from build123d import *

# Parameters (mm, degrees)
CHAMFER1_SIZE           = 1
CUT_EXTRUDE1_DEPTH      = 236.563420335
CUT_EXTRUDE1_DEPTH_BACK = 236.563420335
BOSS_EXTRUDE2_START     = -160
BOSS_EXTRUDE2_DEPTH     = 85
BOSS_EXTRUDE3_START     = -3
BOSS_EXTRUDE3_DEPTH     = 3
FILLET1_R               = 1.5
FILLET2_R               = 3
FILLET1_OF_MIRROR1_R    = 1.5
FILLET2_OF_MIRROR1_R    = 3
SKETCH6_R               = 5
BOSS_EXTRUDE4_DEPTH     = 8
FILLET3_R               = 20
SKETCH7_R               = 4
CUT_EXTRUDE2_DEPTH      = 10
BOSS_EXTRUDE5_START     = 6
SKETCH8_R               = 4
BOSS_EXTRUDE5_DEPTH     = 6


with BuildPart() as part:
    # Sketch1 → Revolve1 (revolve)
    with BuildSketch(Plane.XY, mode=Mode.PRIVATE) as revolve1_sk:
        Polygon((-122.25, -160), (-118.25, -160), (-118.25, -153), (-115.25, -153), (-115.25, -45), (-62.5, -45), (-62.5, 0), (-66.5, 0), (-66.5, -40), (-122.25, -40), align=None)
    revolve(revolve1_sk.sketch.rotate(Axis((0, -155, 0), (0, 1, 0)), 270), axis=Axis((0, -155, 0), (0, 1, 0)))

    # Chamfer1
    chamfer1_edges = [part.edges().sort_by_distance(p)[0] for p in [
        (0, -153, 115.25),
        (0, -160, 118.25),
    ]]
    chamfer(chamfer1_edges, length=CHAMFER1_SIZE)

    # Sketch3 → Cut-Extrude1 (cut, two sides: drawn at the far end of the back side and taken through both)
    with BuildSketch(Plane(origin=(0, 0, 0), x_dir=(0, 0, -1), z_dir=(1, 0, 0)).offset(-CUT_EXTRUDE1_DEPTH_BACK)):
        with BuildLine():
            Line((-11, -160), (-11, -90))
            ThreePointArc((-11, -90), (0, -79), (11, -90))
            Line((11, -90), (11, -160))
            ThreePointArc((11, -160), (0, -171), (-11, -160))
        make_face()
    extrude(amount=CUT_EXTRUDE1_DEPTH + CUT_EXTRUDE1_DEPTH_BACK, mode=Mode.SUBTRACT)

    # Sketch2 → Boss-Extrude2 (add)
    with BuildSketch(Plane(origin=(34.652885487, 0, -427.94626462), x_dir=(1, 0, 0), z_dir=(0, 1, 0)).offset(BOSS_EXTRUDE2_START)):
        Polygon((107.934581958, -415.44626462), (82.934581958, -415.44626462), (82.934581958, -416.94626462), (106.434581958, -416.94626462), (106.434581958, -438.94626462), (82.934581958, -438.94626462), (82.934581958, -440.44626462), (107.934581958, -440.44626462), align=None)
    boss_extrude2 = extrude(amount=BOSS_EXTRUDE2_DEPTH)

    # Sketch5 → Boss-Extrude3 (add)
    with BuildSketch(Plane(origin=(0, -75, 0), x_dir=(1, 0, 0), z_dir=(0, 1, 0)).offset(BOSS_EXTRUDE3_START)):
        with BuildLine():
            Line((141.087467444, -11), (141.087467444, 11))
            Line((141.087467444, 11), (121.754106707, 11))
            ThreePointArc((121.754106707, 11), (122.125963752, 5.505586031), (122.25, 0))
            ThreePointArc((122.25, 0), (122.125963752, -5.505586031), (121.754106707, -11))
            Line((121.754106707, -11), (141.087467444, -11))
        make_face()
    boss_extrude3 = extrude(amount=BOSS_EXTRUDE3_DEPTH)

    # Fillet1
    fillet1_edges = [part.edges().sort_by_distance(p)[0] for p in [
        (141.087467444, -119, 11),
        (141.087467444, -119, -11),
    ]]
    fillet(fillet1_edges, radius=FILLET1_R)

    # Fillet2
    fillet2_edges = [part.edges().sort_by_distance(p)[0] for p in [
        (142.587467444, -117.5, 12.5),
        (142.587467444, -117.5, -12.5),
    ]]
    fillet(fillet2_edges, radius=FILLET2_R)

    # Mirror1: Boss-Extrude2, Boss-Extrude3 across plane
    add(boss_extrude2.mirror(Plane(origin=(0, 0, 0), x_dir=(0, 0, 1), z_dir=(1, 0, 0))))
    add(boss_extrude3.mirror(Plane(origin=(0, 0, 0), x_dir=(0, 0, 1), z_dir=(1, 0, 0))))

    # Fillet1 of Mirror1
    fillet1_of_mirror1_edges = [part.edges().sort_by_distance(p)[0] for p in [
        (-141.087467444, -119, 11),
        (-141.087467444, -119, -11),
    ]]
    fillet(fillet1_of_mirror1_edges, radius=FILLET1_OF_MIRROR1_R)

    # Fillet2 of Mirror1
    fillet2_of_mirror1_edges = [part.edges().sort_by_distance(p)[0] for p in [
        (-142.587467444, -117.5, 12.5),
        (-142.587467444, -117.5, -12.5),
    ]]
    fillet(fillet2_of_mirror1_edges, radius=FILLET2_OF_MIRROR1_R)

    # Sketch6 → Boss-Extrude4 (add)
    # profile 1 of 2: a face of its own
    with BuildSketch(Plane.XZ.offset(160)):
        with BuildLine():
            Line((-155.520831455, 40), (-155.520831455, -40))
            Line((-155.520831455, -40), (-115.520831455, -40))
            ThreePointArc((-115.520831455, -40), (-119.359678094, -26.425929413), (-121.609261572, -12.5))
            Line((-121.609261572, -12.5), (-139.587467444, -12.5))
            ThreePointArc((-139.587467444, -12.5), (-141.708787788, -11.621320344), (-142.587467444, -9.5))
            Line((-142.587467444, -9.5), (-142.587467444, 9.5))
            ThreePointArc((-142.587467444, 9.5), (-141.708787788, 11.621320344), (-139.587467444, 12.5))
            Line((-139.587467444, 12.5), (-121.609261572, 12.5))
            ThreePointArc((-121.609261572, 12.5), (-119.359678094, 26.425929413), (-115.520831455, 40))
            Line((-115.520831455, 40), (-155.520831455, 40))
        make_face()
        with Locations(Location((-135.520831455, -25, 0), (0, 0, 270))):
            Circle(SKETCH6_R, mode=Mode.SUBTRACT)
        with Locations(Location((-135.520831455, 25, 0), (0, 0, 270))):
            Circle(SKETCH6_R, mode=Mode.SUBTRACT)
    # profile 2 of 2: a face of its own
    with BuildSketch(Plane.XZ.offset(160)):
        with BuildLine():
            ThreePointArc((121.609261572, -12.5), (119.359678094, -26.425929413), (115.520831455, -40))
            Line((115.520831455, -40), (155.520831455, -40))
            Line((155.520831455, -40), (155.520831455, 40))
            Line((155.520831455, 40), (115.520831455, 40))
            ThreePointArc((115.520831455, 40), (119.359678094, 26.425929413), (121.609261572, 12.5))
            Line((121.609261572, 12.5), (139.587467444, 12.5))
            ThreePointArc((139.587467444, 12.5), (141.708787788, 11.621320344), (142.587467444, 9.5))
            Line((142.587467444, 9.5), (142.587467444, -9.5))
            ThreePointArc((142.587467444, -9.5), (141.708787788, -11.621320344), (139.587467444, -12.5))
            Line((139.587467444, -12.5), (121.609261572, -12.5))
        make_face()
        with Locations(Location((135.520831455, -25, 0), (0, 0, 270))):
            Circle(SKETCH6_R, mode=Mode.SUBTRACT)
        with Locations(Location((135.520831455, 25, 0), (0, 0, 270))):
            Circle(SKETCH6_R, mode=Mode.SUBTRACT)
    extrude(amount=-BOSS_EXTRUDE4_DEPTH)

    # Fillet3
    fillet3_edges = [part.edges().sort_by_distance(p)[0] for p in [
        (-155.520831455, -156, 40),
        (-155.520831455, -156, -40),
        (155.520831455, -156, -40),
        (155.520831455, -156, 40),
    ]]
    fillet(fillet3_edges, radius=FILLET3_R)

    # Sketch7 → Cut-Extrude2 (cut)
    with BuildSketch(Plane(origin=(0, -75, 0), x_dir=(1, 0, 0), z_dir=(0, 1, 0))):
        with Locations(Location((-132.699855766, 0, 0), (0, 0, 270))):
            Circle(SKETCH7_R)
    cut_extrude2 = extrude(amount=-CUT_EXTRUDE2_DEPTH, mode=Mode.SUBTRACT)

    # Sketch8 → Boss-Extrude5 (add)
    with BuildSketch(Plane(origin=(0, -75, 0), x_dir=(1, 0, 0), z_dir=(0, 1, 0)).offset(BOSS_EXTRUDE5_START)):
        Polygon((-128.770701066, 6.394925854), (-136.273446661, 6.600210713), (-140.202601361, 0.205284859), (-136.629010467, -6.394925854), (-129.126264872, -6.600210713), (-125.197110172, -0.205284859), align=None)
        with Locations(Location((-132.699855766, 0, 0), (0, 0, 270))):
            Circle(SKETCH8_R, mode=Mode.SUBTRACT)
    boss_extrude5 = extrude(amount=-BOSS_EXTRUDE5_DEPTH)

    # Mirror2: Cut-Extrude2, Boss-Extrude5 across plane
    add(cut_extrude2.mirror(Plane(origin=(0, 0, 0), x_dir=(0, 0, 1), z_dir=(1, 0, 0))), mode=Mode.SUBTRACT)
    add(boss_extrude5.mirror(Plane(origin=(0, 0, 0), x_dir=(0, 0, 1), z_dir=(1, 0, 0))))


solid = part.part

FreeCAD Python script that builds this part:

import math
import FreeCAD as App
import Part
import Sketcher


def edges_at(feature, points):
    """Names of the edges that pass closest to the given points."""
    edges = feature.Shape.Edges
    near = lambda p: min(range(len(edges)), key=lambda i: edges[i].distToShape(Part.Vertex(*p))[0])
    return sorted({f"Edge{near(p) + 1}" for p in points})


def add_polygon(sketch, points):
    """Adds a closed chain of lines whose ends are joined by coincident constraints."""
    first, n = sketch.GeometryCount, len(points)
    for a, b in zip(points, points[1:] + points[:1]):
        sketch.addGeometry(Part.LineSegment(App.Vector(*a, 0), App.Vector(*b, 0)), False)
    for i in range(n):
        sketch.addConstraint(Sketcher.Constraint("Coincident", first + i, 2, first + (i + 1) % n, 1))

doc = App.newDocument("Part")
body = doc.addObject("PartDesign::Body", "Body")

# Sketch on XY plane
sketch1 = doc.addObject("Sketcher::SketchObject", "Sketch")
body.addObject(sketch1)
sketch1.AttachmentSupport = (doc.XY_Plane, [""])
sketch1.MapMode = "FlatFace"
add_polygon(sketch1, [(-122.2, -160), (-118.2, -160), (-118.2, -153), (-115.2, -153), (-115.2, -45), (-62.5, -45), (-62.5, 0), (-66.5, 0), (-66.5, -40), (-122.2, -40)])  # lines 0-9
sketch1.addConstraint([
    Sketcher.Constraint("Horizontal", 0),
    Sketcher.Constraint("Vertical", 1),
    Sketcher.Constraint("Horizontal", 2),
    Sketcher.Constraint("Vertical", 3),
    Sketcher.Constraint("Horizontal", 4),
    Sketcher.Constraint("Vertical", 5),
    Sketcher.Constraint("Horizontal", 6),
    Sketcher.Constraint("Vertical", 7),
    Sketcher.Constraint("Horizontal", 8),
    Sketcher.Constraint("Vertical", 9),
    Sketcher.Constraint("PointOnObject", 5, 2, -1),
    Sketcher.Constraint("Equal", 0, 6),
    Sketcher.Constraint("DistanceX", 0, 1, 0, 2, 4.0),
    Sketcher.Constraint("DistanceX", 2, 1, 2, 2, 3.0),
    Sketcher.Constraint("DistanceY", 1, 1, 1, 2, 7.0),
    Sketcher.Constraint("DistanceY", 3, 1, 3, 2, 108.0),
    Sketcher.Constraint("DistanceY", 5, 1, 5, 2, 45.0),
    Sketcher.Constraint("DistanceY", 7, 2, 7, 1, 40.0),
    Sketcher.Constraint("DistanceX", 4, 1, 4, 2, 52.75),
    Sketcher.Constraint("DistanceX", 4, 2, -1, 1, 62.5),
])
revolution = doc.addObject("PartDesign::Revolution", "Revolution")
body.addObject(revolution)
revolution.Profile = sketch1
revolution.ReferenceAxis = (sketch1, ["V_Axis"])
revolution.Angle = 360
doc.recompute()

chamfer = doc.addObject("PartDesign::Chamfer", "Chamfer")
body.addObject(chamfer)
chamfer.Base = (revolution, edges_at(revolution, [(0, -153, 115.25), (0, -160, 118.25)]))
chamfer.Size = 1

# Sketch on YZ plane
sketch2 = doc.addObject("Sketcher::SketchObject", "Sketch001")
body.addObject(sketch2)
sketch2.AttachmentSupport = (doc.YZ_Plane, [""])
sketch2.MapMode = "FlatFace"
sketch2.addGeometry([
    Part.LineSegment(App.Vector(-90, 11, 0), App.Vector(-160, 11, 0)),
    Part.ArcOfCircle(Part.Circle(App.Vector(-160, 0, 0), App.Vector(0, 0, 1), 11), math.radians(90), math.radians(270)),
    Part.LineSegment(App.Vector(-160, -11, 0), App.Vector(-90, -11, 0)),
    Part.ArcOfCircle(Part.Circle(App.Vector(-90, 0, 0), App.Vector(0, 0, 1), 11), math.radians(-90), math.radians(90)),
], False)
sketch2.addConstraint([
    Sketcher.Constraint("Tangent", 0, 2, 1, 1),
    Sketcher.Constraint("Tangent", 1, 2, 2, 1),
    Sketcher.Constraint("Tangent", 2, 2, 3, 1),
    Sketcher.Constraint("Tangent", 3, 2, 0, 1),
    Sketcher.Constraint("Horizontal", 0),
    Sketcher.Constraint("Horizontal", 2),
    Sketcher.Constraint("PointOnObject", 1, 3, -1),
    Sketcher.Constraint("Radius", 1, 11.0),
    Sketcher.Constraint("DistanceX", 0, 2, 0, 1, 70.0),
    Sketcher.Constraint("DistanceX", 1, 3, -1, 1, 160.0),
])
pocket1 = doc.addObject("PartDesign::Pocket", "Pocket")
body.addObject(pocket1)
pocket1.Profile = sketch2
pocket1.Type = "ThroughAll"
pocket1.Midplane = True

# Sketch on XZ plane
sketch3 = doc.addObject("Sketcher::SketchObject", "Sketch002")
body.addObject(sketch3)
sketch3.AttachmentSupport = (doc.XZ_Plane, [""])
sketch3.MapMode = "FlatFace"
sketch3.AttachmentOffset = App.Placement(App.Vector(0, 0, 160), App.Rotation())
add_polygon(sketch3, [(142.6, -12.5), (117.6, -12.5), (117.6, -11), (141.1, -11), (141.1, 11), (117.6, 11), (117.6, 12.5), (142.6, 12.5)])  # lines 0-7
sketch3.addConstraint([
    Sketcher.Constraint("Horizontal", 0),
    Sketcher.Constraint("Vertical", 1),
    Sketcher.Constraint("Horizontal", 2),
    Sketcher.Constraint("Vertical", 3),
    Sketcher.Constraint("Horizontal", 4),
    Sketcher.Constraint("Vertical", 5),
    Sketcher.Constraint("Horizontal", 6),
    Sketcher.Constraint("Vertical", 7),
    Sketcher.Constraint("Symmetric", 1, 2, 4, 2, -1),
    Sketcher.Constraint("Equal", 1, 5),
    Sketcher.Constraint("Equal", 6, 7),
    Sketcher.Constraint("DistanceX", 0, 2, 0, 1, 25.0),
    Sketcher.Constraint("DistanceY", 3, 1, 3, 2, 22.0),
    Sketcher.Constraint("DistanceX", 2, 1, 2, 2, 23.5),
    Sketcher.Constraint("DistanceX", -1, 1, 0, 2, 117.587467),
])
pad1 = doc.addObject("PartDesign::Pad", "Pad")
body.addObject(pad1)
pad1.Profile = sketch3
pad1.Length = 85
pad1.Reversed = True

# Sketch on XZ plane
sketch4 = doc.addObject("Sketcher::SketchObject", "Sketch003")
body.addObject(sketch4)
sketch4.AttachmentSupport = (doc.XZ_Plane, [""])
sketch4.MapMode = "FlatFace"
sketch4.AttachmentOffset = App.Placement(App.Vector(0, 0, 78), App.Rotation())
sketch4.addGeometry([
    Part.LineSegment(App.Vector(141, 11, 0), App.Vector(141, -11, 0)),  # 0
    Part.LineSegment(App.Vector(141, -11, 0), App.Vector(122, -11, 0)),  # 1
    Part.ArcOfCircle(Part.Circle(App.Vector(0, 0, 0), App.Vector(0, 0, 1), 122), math.radians(-5.16), math.radians(0)),  # 2
    Part.ArcOfCircle(Part.Circle(App.Vector(0, 0, 0), App.Vector(0, 0, 1), 122), math.radians(0), math.radians(5.16)),  # 3
    Part.LineSegment(App.Vector(122, 11, 0), App.Vector(141, 11, 0)),  # 4
], False)
sketch4.addConstraint([
    Sketcher.Constraint("Coincident", 0, 2, 1, 1),
    Sketcher.Constraint("Coincident", 1, 2, 2, 1),
    Sketcher.Constraint("Tangent", 2, 2, 3, 1),
    Sketcher.Constraint("Coincident", 3, 2, 4, 1),
    Sketcher.Constraint("Coincident", 4, 2, 0, 1),
    Sketcher.Constraint("Vertical", 0),
    Sketcher.Constraint("Horizontal", 1),
    Sketcher.Constraint("Horizontal", 4),
    Sketcher.Constraint("Coincident", 2, 3, -1, 1),
    Sketcher.Constraint("Equal", 2, 3),
    Sketcher.Constraint("PointOnObject", 2, 2, -1),
    Sketcher.Constraint("Vertical", 1, 2, 3, 2),
    Sketcher.Constraint("DistanceY", 0, 2, 0, 1, 22.0),
    Sketcher.Constraint("Radius", 2, 122.25),
    Sketcher.Constraint("DistanceX", 1, 2, 1, 1, 19.333361),
])
pad2 = doc.addObject("PartDesign::Pad", "Pad001")
body.addObject(pad2)
pad2.Profile = sketch4
pad2.Length = 3
pad2.Reversed = True
doc.recompute()

fillet = doc.addObject("PartDesign::Fillet", "Fillet")
body.addObject(fillet)
fillet.Base = (pad2, edges_at(pad2, [(141.087, -119, 11), (141.087, -119, -11)]))
fillet.Radius = 1.5
doc.recompute()

fillet2 = doc.addObject("PartDesign::Fillet", "Fillet001")
body.addObject(fillet2)
fillet2.Base = (fillet, edges_at(fillet, [(142.587, -117.5, 12.5), (142.587, -117.5, -12.5)]))
fillet2.Radius = 3
doc.recompute()

mirrored = doc.addObject("PartDesign::Mirrored", "Mirrored")
body.addObject(mirrored)
mirrored.Originals = [pad1, pad2]
mirrored.MirrorPlane = (doc.YZ_Plane, [""])
body.Tip = mirrored
doc.recompute()

fillet3 = doc.addObject("PartDesign::Fillet", "Fillet002")
body.addObject(fillet3)
fillet3.Base = (mirrored, edges_at(mirrored, [(-141.087, -119, 11), (-141.087, -119, -11)]))
fillet3.Radius = 1.5
doc.recompute()

fillet4 = doc.addObject("PartDesign::Fillet", "Fillet003")
body.addObject(fillet4)
fillet4.Base = (fillet3, edges_at(fillet3, [(-142.587, -117.5, 12.5), (-142.587, -117.5, -12.5)]))
fillet4.Radius = 3

# Sketch on XZ plane
sketch5 = doc.addObject("Sketcher::SketchObject", "Sketch004")
body.addObject(sketch5)
sketch5.AttachmentSupport = (doc.XZ_Plane, [""])
sketch5.MapMode = "FlatFace"
sketch5.AttachmentOffset = App.Placement(App.Vector(0, 0, 160), App.Rotation())
sketch5.addGeometry([
    Part.LineSegment(App.Vector(-155.5, 40, 0), App.Vector(-155.5, -40, 0)),  # 0
    Part.LineSegment(App.Vector(-155.5, -40, 0), App.Vector(-115.5, -40, 0)),  # 1
    Part.ArcOfCircle(Part.Circle(App.Vector(0, 0, 0), App.Vector(0, 0, 1), 122.3), math.radians(-174.13), math.radians(-160.9)),  # 2
    Part.LineSegment(App.Vector(-121.6, -12.5, 0), App.Vector(-139.6, -12.5, 0)),  # 3
    Part.ArcOfCircle(Part.Circle(App.Vector(-139.6, -9.5, 0), App.Vector(0, 0, 1), 3), math.radians(180), math.radians(270)),  # 4
    Part.LineSegment(App.Vector(-142.6, -9.5, 0), App.Vector(-142.6, 9.5, 0)),  # 5
    Part.ArcOfCircle(Part.Circle(App.Vector(-139.6, 9.5, 0), App.Vector(0, 0, 1), 3), math.radians(90), math.radians(180)),  # 6
    Part.LineSegment(App.Vector(-139.6, 12.5, 0), App.Vector(-121.6, 12.5, 0)),  # 7
    Part.ArcOfCircle(Part.Circle(App.Vector(0, 0, 0), App.Vector(0, 0, 1), 122.3), math.radians(160.9), math.radians(174.13)),  # 8
    Part.LineSegment(App.Vector(-115.5, 40, 0), App.Vector(-155.5, 40, 0)),  # 9
    Part.Circle(App.Vector(-135.5, -25, 0), App.Vector(0, 0, 1), 5),  # 10
    Part.Circle(App.Vector(-135.5, 25, 0), App.Vector(0, 0, 1), 5),  # 11
    Part.ArcOfCircle(Part.Circle(App.Vector(0, 0, 0), App.Vector(0, 0, 1), 122.3), math.radians(-19.1), math.radians(-5.87)),  # 12
    Part.LineSegment(App.Vector(115.5, -40, 0), App.Vector(155.5, -40, 0)),  # 13
    Part.LineSegment(App.Vector(155.5, -40, 0), App.Vector(155.5, 40, 0)),  # 14
    Part.LineSegment(App.Vector(155.5, 40, 0), App.Vector(115.5, 40, 0)),  # 15
    Part.ArcOfCircle(Part.Circle(App.Vector(0, 0, 0), App.Vector(0, 0, 1), 122.3), math.radians(5.87), math.radians(19.1)),  # 16
    Part.LineSegment(App.Vector(121.6, 12.5, 0), App.Vector(139.6, 12.5, 0)),  # 17
    Part.ArcOfCircle(Part.Circle(App.Vector(139.6, 9.5, 0), App.Vector(0, 0, 1), 3), math.radians(0), math.radians(90)),  # 18
    Part.LineSegment(App.Vector(142.6, 9.5, 0), App.Vector(142.6, -9.5, 0)),  # 19
    Part.ArcOfCircle(Part.Circle(App.Vector(139.6, -9.5, 0), App.Vector(0, 0, 1), 3), math.radians(-90), math.radians(0)),  # 20
    Part.LineSegment(App.Vector(139.6, -12.5, 0), App.Vector(121.6, -12.5, 0)),  # 21
    Part.Circle(App.Vector(135.5, -25, 0), App.Vector(0, 0, 1), 5),  # 22
    Part.Circle(App.Vector(135.5, 25, 0), App.Vector(0, 0, 1), 5),  # 23
], False)
sketch5.addConstraint([
    Sketcher.Constraint("Coincident", 0, 2, 1, 1),
    Sketcher.Constraint("Coincident", 1, 2, 2, 2),
    Sketcher.Constraint("Coincident", 2, 1, 3, 1),
    Sketcher.Constraint("Tangent", 3, 2, 4, 2),
    Sketcher.Constraint("Tangent", 4, 1, 5, 1),
    Sketcher.Constraint("Tangent", 5, 2, 6, 2),
    Sketcher.Constraint("Tangent", 6, 1, 7, 1),
    Sketcher.Constraint("Coincident", 7, 2, 8, 2),
    Sketcher.Constraint("Coincident", 8, 1, 9, 1),
    Sketcher.Constraint("Coincident", 9, 2, 0, 1),
    Sketcher.Constraint("Coincident", 12, 1, 13, 1),
    Sketcher.Constraint("Coincident", 13, 2, 14, 1),
    Sketcher.Constraint("Coincident", 14, 2, 15, 1),
    Sketcher.Constraint("Coincident", 15, 2, 16, 2),
    Sketcher.Constraint("Coincident", 16, 1, 17, 1),
    Sketcher.Constraint("Tangent", 17, 2, 18, 2),
    Sketcher.Constraint("Tangent", 18, 1, 19, 1),
    Sketcher.Constraint("Tangent", 19, 2, 20, 2),
    Sketcher.Constraint("Tangent", 20, 1, 21, 1),
    Sketcher.Constraint("Coincident", 21, 2, 12, 2),
    Sketcher.Constraint("Vertical", 0),
    Sketcher.Constraint("Horizontal", 1),
    Sketcher.Constraint("Horizontal", 3),
    Sketcher.Constraint("Vertical", 5),
    Sketcher.Constraint("Horizontal", 7),
    Sketcher.Constraint("Horizontal", 9),
    Sketcher.Constraint("Horizontal", 13),
    Sketcher.Constraint("Vertical", 14),
    Sketcher.Constraint("Horizontal", 15),
    Sketcher.Constraint("Horizontal", 17),
    Sketcher.Constraint("Vertical", 19),
    Sketcher.Constraint("Horizontal", 21),
    Sketcher.Constraint("Coincident", 2, 3, -1, 1),
    Sketcher.Constraint("Coincident", 8, 3, -1, 1),
    Sketcher.Constraint("Coincident", 12, 3, -1, 1),
    Sketcher.Constraint("Coincident", 16, 3, -1, 1),
    Sketcher.Constraint("Equal", 4, 6),
    Sketcher.Constraint("Equal", 2, 8),
    Sketcher.Constraint("Equal", 10, 11),
    Sketcher.Constraint("Equal", 8, 12),
    Sketcher.Constraint("Equal", 12, 16),
    Sketcher.Constraint("Equal", 6, 18),
    Sketcher.Constraint("Equal", 18, 20),
    Sketcher.Constraint("Equal", 11, 22),
    Sketcher.Constraint("Equal", 22, 23),
    Sketcher.Constraint("Symmetric", 4, 3, 18, 3, -1, 1),
    Sketcher.Constraint("Symmetric", 11, 3, 22, 3, -1, 1),
    Sketcher.Constraint("Symmetric", 10, 3, 23, 3, -1, 1),
    Sketcher.Constraint("Symmetric", 9, 2, 13, 2, -1, 1),
    Sketcher.Constraint("Symmetric", 10, 3, 22, 3, -2),
    Sketcher.Constraint("Horizontal", 6, 3, 18, 3),
    Sketcher.Constraint("Horizontal", 4, 3, 20, 3),
    Sketcher.Constraint("Horizontal", 1, 2, 12, 1),
    Sketcher.Constraint("Horizontal", 9, 2, 14, 2),
    Sketcher.Constraint("Diameter", 10, 10.0),
    Sketcher.Constraint("Radius", 4, 3.0),
    Sketcher.Constraint("DistanceX", 1, 1, 1, 2, 40.0),
    Sketcher.Constraint("DistanceY", 0, 2, 0, 1, 80.0),
    Sketcher.Constraint("DistanceY", 5, 1, 5, 2, 19.0),
    Sketcher.Constraint("Radius", 2, 122.25),
    Sketcher.Constraint("DistanceY", 10, 3, -1, 1, 25.0),
    Sketcher.Constraint("DistanceX", 0, 2, 10, 3, 20.0),
    Sketcher.Constraint("DistanceX", 11, 3, 18, 3, 275.108299),
])
pad3 = doc.addObject("PartDesign::Pad", "Pad002")
body.addObject(pad3)
pad3.Profile = sketch5
pad3.Length = 8
pad3.Reversed = True
doc.recompute()

fillet5 = doc.addObject("PartDesign::Fillet", "Fillet004")
body.addObject(fillet5)
fillet5.Base = (pad3, edges_at(pad3, [
    (-155.521, -156, 40),
    (-155.521, -156, -40),
    (155.521, -156, -40),
    (155.521, -156, 40),
]))
fillet5.Radius = 20

# Sketch on XZ plane
sketch6 = doc.addObject("Sketcher::SketchObject", "Sketch005")
body.addObject(sketch6)
sketch6.AttachmentSupport = (doc.XZ_Plane, [""])
sketch6.MapMode = "FlatFace"
sketch6.AttachmentOffset = App.Placement(App.Vector(0, 0, 75), App.Rotation())
sketch6.addGeometry(Part.Circle(App.Vector(-132.699856, 0, 0), App.Vector(0, 0, 1), 4), False)
sketch6.addConstraint([
    Sketcher.Constraint("PointOnObject", 0, 3, -1),
    Sketcher.Constraint("Diameter", 0, 8.0),
    Sketcher.Constraint("DistanceX", 0, 3, -1, 1, 132.699856),
])
pocket2 = doc.addObject("PartDesign::Pocket", "Pocket001")
body.addObject(pocket2)
pocket2.Profile = sketch6
pocket2.Length = 10
pocket2.Reversed = True

# Sketch on XZ plane
sketch7 = doc.addObject("Sketcher::SketchObject", "Sketch006")
body.addObject(sketch7)
sketch7.AttachmentSupport = (doc.XZ_Plane, [""])
sketch7.MapMode = "FlatFace"
sketch7.AttachmentOffset = App.Placement(App.Vector(0, 0, 69), App.Rotation())
add_polygon(sketch7, [(-128.8, -6.4), (-136.3, -6.6), (-140.2, -0.2), (-136.6, 6.4), (-129.1, 6.6), (-125.2, 0.2)])  # lines 0-5
sketch7.addGeometry(Part.Circle(App.Vector(-132.7, 0, 0), App.Vector(0, 0, 1), 4), False)  # 6
sketch7.addConstraint([
    Sketcher.Constraint("PointOnObject", 6, 3, -1),
    Sketcher.Constraint("Parallel", 0, 3),
    Sketcher.Constraint("Parallel", 1, 4),
    Sketcher.Constraint("Parallel", 2, 5),
    Sketcher.Constraint("Equal", 0, 1),
    Sketcher.Constraint("Equal", 1, 2),
    Sketcher.Constraint("Equal", 2, 3),
    Sketcher.Constraint("Diameter", 6, 8.0),
    Sketcher.Constraint("DistanceX", 1, 2, -1, 1, 140.202601),
    Sketcher.Constraint("DistanceX", 5, 2, -1, 1, 128.770701),
    Sketcher.Constraint("DistanceY", 0, 2, -1, 1, 6.600211),
    Sketcher.Constraint("DistanceX", 2, 2, -1, 1, 136.62901),
    Sketcher.Constraint("DistanceY", -1, 1, 3, 2, 6.600211),
    Sketcher.Constraint("DistanceX", 0, 2, 6, 3, 3.573591),
    Sketcher.Constraint("DistanceY", 1, 2, 2, 2, 6.600211),
])
pad4 = doc.addObject("PartDesign::Pad", "Pad003")
body.addObject(pad4)
pad4.Profile = sketch7
pad4.Length = 6
doc.recompute()

mirrored2 = doc.addObject("PartDesign::Mirrored", "Mirrored001")
body.addObject(mirrored2)
mirrored2.Originals = [pocket2, pad4]
mirrored2.MirrorPlane = (doc.YZ_Plane, [""])
body.Tip = mirrored2

doc.recompute()
